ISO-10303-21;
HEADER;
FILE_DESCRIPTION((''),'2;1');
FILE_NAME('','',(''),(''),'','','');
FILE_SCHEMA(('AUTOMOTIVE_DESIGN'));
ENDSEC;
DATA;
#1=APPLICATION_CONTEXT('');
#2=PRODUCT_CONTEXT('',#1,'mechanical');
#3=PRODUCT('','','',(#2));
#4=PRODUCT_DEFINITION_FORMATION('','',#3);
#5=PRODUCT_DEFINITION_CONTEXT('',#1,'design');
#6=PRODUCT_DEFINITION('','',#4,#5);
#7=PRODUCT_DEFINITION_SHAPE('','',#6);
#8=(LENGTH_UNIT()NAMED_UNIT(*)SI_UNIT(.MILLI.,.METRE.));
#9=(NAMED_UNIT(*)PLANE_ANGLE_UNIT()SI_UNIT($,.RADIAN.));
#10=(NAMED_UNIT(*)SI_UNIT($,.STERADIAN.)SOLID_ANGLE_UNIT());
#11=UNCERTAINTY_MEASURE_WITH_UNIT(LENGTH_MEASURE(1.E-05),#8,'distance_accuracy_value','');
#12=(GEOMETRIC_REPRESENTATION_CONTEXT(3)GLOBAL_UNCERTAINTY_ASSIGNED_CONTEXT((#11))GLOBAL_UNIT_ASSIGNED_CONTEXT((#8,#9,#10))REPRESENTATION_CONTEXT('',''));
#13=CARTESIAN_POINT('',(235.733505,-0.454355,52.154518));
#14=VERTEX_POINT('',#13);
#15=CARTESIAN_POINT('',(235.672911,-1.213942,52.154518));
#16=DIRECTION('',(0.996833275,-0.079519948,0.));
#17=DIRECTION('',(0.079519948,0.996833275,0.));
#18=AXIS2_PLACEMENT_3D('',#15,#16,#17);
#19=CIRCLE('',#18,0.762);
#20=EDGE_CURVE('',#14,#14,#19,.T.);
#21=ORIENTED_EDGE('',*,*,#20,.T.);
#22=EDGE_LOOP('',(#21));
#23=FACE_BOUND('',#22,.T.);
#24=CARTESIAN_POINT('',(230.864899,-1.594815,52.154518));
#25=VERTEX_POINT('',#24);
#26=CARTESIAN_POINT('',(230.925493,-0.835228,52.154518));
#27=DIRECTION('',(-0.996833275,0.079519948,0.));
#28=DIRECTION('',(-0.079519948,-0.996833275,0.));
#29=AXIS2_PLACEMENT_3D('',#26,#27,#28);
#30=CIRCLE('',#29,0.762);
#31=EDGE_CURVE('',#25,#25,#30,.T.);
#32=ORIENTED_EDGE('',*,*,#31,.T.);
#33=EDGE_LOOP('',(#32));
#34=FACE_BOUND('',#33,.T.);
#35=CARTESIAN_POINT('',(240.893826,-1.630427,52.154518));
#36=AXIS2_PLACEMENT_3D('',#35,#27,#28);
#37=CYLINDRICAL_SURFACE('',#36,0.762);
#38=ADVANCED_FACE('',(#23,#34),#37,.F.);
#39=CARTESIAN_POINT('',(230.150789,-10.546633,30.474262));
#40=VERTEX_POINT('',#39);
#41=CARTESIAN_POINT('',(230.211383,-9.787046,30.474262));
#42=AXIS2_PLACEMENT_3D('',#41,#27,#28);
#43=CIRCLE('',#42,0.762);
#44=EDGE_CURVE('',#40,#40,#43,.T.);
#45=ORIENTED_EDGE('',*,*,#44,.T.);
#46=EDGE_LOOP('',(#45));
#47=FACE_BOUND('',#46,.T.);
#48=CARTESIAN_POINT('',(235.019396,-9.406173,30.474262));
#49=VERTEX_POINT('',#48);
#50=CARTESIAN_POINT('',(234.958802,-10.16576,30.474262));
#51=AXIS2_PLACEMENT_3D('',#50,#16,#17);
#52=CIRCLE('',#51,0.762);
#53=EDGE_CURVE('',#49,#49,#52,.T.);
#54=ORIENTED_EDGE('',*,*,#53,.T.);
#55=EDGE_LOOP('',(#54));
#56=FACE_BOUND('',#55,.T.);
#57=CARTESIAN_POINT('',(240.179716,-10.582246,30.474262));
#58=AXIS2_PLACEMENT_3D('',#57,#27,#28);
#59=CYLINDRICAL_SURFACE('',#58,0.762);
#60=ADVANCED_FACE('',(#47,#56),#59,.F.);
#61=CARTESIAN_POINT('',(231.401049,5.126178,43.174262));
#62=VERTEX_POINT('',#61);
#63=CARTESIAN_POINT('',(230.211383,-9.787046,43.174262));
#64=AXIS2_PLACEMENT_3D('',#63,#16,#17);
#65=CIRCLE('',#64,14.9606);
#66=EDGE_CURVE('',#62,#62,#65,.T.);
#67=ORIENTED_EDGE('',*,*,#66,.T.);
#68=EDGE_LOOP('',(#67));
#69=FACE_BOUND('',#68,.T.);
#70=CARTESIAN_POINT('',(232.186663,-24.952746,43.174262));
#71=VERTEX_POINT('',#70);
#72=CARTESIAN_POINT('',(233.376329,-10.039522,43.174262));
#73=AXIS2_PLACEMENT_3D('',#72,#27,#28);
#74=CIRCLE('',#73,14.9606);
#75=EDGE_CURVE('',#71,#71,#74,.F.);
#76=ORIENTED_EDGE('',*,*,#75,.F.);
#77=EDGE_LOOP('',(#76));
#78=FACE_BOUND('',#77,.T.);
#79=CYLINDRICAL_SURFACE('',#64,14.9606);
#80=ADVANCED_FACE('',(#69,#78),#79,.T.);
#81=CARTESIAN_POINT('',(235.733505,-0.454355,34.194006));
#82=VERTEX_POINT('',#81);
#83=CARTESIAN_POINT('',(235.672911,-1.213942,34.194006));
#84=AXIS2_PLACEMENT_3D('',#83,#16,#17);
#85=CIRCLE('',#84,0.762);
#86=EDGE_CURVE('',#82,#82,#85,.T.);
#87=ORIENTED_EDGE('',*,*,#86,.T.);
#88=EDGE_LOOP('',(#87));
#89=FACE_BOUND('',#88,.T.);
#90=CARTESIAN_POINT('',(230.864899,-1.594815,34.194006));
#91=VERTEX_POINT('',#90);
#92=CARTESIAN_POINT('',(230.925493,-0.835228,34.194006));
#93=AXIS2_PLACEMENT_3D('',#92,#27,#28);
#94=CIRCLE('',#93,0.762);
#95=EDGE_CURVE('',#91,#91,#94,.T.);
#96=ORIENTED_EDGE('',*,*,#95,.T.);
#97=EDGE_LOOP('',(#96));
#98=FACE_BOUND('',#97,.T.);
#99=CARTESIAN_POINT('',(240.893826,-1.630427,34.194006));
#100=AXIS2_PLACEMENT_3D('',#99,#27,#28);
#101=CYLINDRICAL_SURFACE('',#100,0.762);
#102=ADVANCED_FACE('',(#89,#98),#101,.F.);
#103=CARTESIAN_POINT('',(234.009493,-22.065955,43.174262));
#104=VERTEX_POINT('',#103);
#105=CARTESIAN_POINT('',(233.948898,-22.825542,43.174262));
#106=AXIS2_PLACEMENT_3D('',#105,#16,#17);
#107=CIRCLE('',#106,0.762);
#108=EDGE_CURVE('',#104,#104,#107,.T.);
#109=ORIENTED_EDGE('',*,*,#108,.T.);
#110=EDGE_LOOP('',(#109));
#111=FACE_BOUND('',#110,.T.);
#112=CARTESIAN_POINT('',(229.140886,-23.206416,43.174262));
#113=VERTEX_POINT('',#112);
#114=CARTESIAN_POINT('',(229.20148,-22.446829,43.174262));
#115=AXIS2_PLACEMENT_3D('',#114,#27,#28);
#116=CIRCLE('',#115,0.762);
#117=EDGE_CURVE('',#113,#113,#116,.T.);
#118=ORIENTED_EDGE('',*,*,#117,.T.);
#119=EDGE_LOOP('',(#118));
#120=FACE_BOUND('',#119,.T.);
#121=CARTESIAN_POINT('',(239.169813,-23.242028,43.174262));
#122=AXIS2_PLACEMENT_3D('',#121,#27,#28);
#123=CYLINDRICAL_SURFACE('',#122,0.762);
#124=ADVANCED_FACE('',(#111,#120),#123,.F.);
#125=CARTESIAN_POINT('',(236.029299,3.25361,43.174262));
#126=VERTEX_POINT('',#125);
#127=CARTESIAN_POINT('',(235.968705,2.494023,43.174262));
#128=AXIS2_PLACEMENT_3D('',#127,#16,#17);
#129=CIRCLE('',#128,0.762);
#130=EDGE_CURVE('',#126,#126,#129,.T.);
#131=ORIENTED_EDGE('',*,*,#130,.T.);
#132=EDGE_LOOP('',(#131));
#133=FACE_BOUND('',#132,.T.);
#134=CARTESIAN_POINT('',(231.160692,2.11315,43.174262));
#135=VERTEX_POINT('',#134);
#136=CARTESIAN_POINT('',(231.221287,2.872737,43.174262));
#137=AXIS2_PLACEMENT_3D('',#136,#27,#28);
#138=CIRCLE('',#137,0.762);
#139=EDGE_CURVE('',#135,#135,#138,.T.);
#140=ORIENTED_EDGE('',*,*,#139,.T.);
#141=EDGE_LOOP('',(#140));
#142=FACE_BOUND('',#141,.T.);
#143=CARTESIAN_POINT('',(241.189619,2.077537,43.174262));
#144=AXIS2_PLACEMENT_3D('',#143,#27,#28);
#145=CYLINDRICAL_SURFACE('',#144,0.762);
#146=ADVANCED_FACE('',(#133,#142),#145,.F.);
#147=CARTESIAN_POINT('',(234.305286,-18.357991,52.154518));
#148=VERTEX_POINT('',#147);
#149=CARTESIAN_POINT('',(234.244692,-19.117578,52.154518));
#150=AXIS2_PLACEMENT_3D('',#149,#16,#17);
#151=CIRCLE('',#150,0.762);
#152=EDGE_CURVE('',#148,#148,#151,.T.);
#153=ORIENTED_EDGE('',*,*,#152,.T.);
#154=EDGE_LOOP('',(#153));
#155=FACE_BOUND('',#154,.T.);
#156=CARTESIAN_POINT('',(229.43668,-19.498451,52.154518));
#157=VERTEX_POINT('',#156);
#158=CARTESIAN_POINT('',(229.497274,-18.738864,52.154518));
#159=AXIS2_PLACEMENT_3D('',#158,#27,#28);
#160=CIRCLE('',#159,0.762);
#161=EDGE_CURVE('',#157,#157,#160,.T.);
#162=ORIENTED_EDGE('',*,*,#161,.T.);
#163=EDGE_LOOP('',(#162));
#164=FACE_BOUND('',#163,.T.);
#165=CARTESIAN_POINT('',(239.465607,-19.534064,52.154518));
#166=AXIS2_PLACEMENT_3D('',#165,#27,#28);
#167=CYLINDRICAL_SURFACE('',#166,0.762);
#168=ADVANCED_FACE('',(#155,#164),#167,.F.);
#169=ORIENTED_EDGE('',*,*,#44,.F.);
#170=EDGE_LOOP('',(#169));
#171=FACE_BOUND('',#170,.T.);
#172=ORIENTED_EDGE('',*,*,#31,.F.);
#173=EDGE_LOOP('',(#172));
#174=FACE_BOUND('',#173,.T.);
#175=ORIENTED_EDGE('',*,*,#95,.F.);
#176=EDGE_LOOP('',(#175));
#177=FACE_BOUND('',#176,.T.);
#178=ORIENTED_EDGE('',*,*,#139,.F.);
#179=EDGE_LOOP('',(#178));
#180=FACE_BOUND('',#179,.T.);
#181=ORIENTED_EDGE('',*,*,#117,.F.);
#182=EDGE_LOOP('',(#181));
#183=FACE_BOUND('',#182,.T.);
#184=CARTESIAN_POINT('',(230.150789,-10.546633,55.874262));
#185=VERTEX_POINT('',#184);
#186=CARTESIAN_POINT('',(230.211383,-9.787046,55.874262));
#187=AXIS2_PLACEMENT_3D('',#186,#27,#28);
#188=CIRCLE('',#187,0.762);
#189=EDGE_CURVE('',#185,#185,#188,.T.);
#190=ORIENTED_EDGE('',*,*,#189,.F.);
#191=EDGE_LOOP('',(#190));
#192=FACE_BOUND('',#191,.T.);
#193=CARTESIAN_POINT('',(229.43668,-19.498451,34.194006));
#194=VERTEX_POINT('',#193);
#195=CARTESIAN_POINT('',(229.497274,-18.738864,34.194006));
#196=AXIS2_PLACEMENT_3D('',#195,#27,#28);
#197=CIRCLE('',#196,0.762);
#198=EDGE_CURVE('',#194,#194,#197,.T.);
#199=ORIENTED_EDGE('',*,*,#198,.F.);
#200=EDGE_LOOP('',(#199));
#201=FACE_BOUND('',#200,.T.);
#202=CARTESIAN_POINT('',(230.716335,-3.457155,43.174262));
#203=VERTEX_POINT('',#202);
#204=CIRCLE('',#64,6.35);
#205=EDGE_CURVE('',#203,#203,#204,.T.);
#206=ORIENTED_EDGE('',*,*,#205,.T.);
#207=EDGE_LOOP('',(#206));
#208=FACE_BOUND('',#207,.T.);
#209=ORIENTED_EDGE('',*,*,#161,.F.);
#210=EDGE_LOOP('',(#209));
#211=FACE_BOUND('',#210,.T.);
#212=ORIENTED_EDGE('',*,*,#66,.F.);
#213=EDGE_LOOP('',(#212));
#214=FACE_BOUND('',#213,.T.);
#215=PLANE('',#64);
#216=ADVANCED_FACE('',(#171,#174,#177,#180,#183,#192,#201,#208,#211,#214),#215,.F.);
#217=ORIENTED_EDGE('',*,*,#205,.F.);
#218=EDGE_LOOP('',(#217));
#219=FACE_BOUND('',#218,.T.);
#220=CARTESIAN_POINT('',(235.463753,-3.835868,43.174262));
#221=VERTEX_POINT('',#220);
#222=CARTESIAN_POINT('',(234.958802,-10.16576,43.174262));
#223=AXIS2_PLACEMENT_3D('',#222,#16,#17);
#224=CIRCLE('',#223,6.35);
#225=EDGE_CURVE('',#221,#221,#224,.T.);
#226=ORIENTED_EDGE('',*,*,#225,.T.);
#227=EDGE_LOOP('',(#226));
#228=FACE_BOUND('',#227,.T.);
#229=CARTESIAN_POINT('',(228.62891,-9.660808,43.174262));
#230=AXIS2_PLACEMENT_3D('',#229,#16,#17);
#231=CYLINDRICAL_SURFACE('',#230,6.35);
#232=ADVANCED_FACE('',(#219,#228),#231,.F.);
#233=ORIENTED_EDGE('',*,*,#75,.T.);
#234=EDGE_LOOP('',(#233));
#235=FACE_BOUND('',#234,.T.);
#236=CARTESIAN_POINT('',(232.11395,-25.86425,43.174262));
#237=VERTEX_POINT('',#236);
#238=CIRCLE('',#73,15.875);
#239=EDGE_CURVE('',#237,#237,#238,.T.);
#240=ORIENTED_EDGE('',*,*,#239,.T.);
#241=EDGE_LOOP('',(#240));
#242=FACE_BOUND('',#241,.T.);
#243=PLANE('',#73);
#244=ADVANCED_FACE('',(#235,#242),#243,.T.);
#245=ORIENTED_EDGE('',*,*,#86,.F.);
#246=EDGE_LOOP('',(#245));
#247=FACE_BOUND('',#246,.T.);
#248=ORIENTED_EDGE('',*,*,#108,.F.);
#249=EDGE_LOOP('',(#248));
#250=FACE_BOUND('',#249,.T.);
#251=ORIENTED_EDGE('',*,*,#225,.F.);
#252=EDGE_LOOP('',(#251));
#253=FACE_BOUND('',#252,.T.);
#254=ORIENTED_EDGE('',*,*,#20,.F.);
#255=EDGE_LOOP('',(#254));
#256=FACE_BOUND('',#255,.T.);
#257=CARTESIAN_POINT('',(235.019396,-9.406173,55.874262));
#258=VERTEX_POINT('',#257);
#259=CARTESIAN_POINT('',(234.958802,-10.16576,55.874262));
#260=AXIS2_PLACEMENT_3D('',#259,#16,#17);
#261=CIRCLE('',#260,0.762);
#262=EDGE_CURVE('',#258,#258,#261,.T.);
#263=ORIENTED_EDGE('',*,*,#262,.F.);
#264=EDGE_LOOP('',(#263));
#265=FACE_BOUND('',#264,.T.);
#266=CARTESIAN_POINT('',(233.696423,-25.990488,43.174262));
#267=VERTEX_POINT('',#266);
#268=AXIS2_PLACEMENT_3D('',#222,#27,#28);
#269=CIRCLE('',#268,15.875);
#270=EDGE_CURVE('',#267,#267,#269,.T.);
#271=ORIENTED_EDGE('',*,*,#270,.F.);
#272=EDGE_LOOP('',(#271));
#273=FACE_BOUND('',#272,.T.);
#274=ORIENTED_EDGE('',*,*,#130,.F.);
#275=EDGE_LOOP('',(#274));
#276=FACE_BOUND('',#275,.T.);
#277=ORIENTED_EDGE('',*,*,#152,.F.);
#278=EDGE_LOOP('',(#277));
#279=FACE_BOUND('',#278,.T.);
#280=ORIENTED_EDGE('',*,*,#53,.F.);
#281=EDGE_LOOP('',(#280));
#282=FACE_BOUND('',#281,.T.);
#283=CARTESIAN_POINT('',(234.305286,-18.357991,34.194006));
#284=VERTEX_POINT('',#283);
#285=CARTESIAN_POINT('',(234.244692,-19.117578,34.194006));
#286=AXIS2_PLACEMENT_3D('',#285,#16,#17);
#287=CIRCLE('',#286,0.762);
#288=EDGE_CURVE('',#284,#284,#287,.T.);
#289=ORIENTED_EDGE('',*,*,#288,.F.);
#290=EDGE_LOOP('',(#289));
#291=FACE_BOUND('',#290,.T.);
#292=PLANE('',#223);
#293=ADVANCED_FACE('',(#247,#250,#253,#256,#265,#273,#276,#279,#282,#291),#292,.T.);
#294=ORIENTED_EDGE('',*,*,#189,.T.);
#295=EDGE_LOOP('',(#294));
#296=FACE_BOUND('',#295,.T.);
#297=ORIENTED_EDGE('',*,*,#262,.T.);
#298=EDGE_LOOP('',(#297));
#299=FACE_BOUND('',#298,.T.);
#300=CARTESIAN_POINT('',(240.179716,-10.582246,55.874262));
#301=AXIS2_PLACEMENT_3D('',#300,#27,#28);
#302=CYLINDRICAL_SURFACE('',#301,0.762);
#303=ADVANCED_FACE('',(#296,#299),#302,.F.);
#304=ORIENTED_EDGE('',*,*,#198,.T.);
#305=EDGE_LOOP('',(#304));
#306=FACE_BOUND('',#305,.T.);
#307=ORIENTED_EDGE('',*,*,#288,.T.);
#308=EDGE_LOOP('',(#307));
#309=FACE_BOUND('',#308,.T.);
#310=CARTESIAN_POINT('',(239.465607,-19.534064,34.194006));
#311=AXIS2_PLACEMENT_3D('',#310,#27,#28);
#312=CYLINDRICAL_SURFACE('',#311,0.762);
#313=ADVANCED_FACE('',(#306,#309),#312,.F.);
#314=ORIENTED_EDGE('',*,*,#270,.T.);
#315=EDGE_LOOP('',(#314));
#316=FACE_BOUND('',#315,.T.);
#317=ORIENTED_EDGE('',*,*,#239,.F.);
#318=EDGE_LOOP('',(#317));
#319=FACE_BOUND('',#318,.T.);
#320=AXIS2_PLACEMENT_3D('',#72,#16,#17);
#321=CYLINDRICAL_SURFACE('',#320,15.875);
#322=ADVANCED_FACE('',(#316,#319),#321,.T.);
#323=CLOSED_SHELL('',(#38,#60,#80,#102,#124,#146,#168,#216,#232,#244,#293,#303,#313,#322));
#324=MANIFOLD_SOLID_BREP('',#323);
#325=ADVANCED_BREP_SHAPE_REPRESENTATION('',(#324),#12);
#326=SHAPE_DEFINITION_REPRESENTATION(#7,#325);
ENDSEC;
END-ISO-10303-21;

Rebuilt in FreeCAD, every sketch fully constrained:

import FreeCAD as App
import Part
import Sketcher

V = App.Vector
Q = App.Units.Quantity

doc = App.newDocument("Part")
body = doc.addObject("PartDesign::Body", "Body")

# Sketch on an angled plane
sketch1 = body.newObject("Sketcher::SketchObject", "Sketch")
sketch1.Placement = App.Placement(V(234.278879, -18.689027, 0), App.Rotation(V(0, 0, -1), V(0.079519948, 0.996833275, 0), V(0.996833275, -0.079519948, 0), "ZXY"))
sketch1.addGeometry(Part.Circle(V(-43, 9, 0), V(0, 0, 1), 15), False)
sketch1.addConstraint(Sketcher.Constraint("Diameter", 0, Q("1.178 in")))
sketch1.addConstraint(Sketcher.Constraint("DistanceX", 0, 3, -1, 1, Q("43.174262 mm")))
sketch1.addConstraint(Sketcher.Constraint("DistanceY", -1, 1, 0, 3, Q("8.550344 mm")))
pad1 = body.newObject("PartDesign::Pad", "Pad")
pad1.Profile = sketch1
pad1.Length = Q("0.1875 in")
pad1.Reversed = True

# Sketch on an angled plane
sketch2 = body.newObject("Sketcher::SketchObject", "Sketch001")
sketch2.Placement = App.Placement(V(234.278879, -18.689027, 0), App.Rotation(V(0, 0, -1), V(0.079519948, 0.996833275, 0), V(0.996833275, -0.079519948, 0), "ZXY"))
sketch2.addGeometry(Part.Circle(V(-43, 9, 0), V(0, 0, 1), 6), False)
sketch2.addConstraint(Sketcher.Constraint("Diameter", 0, Q("0.5 in")))
sketch2.addConstraint(Sketcher.Constraint("DistanceX", 0, 3, -1, 1, Q("43.174262 mm")))
sketch2.addConstraint(Sketcher.Constraint("DistanceY", -1, 1, 0, 3, Q("8.550344 mm")))
pocket1 = body.newObject("PartDesign::Pocket", "Pocket")
pocket1.Profile = sketch2
pocket1.Length = Q("0.25 in")

# Sketch on an angled plane
sketch3 = body.newObject("Sketcher::SketchObject", "Sketch002")
sketch3.Placement = App.Placement(V(229.53146, -18.310313, 0), App.Rotation(V(0, 0, 1), V(0.079519948, 0.996833275, 0), V(-0.996833275, 0.079519948, 0), "ZXY"))
sketch3.addGeometry(Part.Circle(V(30.5, 8.6, 0), V(0, 0, 1), 0.8), False)
sketch3.addGeometry(Part.Circle(V(43.2, 21.3, 0), V(0, 0, 1), 0.8), False)
sketch3.addGeometry(Part.Circle(V(52.2, 17.5, 0), V(0, 0, 1), 0.8), False)
sketch3.addGeometry(Part.Circle(V(55.9, 8.6, 0), V(0, 0, 1), 0.8), False)
sketch3.addGeometry(Part.Circle(V(52.2, -0.4, 0), V(0, 0, 1), 0.8), False)
sketch3.addGeometry(Part.Circle(V(43.2, -4.1, 0), V(0, 0, 1), 0.8), False)
sketch3.addGeometry(Part.Circle(V(34.2, -0.4, 0), V(0, 0, 1), 0.8), False)
sketch3.addGeometry(Part.Circle(V(34.2, 17.5, 0), V(0, 0, 1), 0.8), False)
sketch3.addConstraint(Sketcher.Constraint("Equal", 0, 1))
sketch3.addConstraint(Sketcher.Constraint("Equal", 1, 2))
sketch3.addConstraint(Sketcher.Constraint("Equal", 2, 3))
sketch3.addConstraint(Sketcher.Constraint("Equal", 3, 4))
sketch3.addConstraint(Sketcher.Constraint("Equal", 4, 5))
sketch3.addConstraint(Sketcher.Constraint("Equal", 5, 6))
sketch3.addConstraint(Sketcher.Constraint("Equal", 6, 7))
sketch3.addConstraint(Sketcher.Constraint("Horizontal", 0, 3, 3, 3))
sketch3.addConstraint(Sketcher.Constraint("Horizontal", 4, 3, 6, 3))
sketch3.addConstraint(Sketcher.Constraint("Horizontal", 2, 3, 7, 3))
sketch3.addConstraint(Sketcher.Constraint("Vertical", 2, 3, 4, 3))
sketch3.addConstraint(Sketcher.Constraint("Vertical", 1, 3, 5, 3))
sketch3.addConstraint(Sketcher.Constraint("Vertical", 6, 3, 7, 3))
sketch3.addConstraint(Sketcher.Constraint("Diameter", 0, Q("0.06 in")))
sketch3.addConstraint(Sketcher.Constraint("DistanceX", 0, 3, 3, 3, Q("1 in")))
sketch3.addConstraint(Sketcher.Constraint("DistanceY", 5, 3, 1, 3, Q("1 in")))
sketch3.addConstraint(Sketcher.Constraint("DistanceX", 0, 3, 1, 3, Q("0.5 in")))
sketch3.addConstraint(Sketcher.Constraint("DistanceY", 0, 3, 1, 3, Q("0.5 in")))
sketch3.addConstraint(Sketcher.Constraint("DistanceY", -1, 1, 2, 3, Q("17.5306 mm")))
sketch3.addConstraint(Sketcher.Constraint("DistanceX", -1, 1, 0, 3, Q("30.474262 mm")))
sketch3.addConstraint(Sketcher.Constraint("DistanceY", -1, 1, 0, 3, Q("8.550344 mm")))
sketch3.addConstraint(Sketcher.Constraint("DistanceX", -1, 1, 2, 3, Q("52.154518 mm")))
sketch3.addConstraint(Sketcher.Constraint("DistanceY", 4, 3, -1, 1, Q("0.429912 mm")))
sketch3.addConstraint(Sketcher.Constraint("DistanceX", -1, 1, 6, 3, Q("34.194006 mm")))
pocket2 = body.newObject("PartDesign::Pocket", "Pocket001")
pocket2.Profile = sketch3
pocket2.Length = 10

# Sketch on an angled plane
sketch4 = body.newObject("Sketcher::SketchObject", "Sketch003")
sketch4.Placement = App.Placement(V(234.278879, -18.689027, 0), App.Rotation(V(0, 0, 1), V(0.079519948, 0.996833275, 0), V(-0.996833275, 0.079519948, 0), "ZXY"))
sketch4.addGeometry(Part.Circle(V(43, 9, 0), V(0, 0, 1), 16), False)
sketch4.addGeometry(Part.Circle(V(43, 9, 0), V(0, 0, 1), 15), False)
sketch4.addConstraint(Sketcher.Constraint("Coincident", 1, 3, 0, 3))
sketch4.addConstraint(Sketcher.Constraint("Diameter", 0, Q("1.25 in")))
sketch4.addConstraint(Sketcher.Constraint("Diameter", 1, Q("1.178 in")))
sketch4.addConstraint(Sketcher.Constraint("DistanceX", -1, 1, 0, 3, Q("43.174262 mm")))
sketch4.addConstraint(Sketcher.Constraint("DistanceY", -1, 1, 0, 3, Q("8.550344 mm")))
pad2 = body.newObject("PartDesign::Pad", "Pad001")
pad2.Profile = sketch4
pad2.Length = Q("0.0625 in")

doc.recompute()
